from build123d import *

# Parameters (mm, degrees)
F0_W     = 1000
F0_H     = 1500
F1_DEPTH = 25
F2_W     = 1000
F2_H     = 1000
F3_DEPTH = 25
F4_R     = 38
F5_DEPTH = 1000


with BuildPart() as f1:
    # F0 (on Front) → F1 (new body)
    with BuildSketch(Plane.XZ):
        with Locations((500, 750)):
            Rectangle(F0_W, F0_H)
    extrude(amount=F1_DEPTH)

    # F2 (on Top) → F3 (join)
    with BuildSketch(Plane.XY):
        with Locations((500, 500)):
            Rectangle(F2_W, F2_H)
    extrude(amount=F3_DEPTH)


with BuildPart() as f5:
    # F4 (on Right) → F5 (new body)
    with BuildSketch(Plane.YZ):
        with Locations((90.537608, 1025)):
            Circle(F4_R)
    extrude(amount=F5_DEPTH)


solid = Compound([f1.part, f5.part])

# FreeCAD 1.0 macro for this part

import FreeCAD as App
import Part
import Sketcher
from FreeCAD import Vector
Q = App.Units.Quantity

doc = App.newDocument("Part")
params = doc.addObject("Spreadsheet::Sheet", "Params")
for row, (alias, value) in enumerate([
    ("sketch1_width", "1000 mm"),
    ("sketch1_height", "1500 mm"),
    ("pad1_length", "25 mm"),
    ("sketch2_width", "1000 mm"),
    ("pad2_length", "25 mm"),
    ("sketch3_diameter", "76 mm"),
    ("pad3_length", "1000 mm"),
], start=1):
    params.set(f"A{row}", alias)
    params.set(f"B{row}", "=" + value)
    params.setAlias(f"B{row}", alias)

body = doc.addObject("PartDesign::Body", "Body")

# Sketch on XZ plane
sketch1 = body.newObject("Sketcher::SketchObject", "Sketch")
sketch1.AttachmentSupport = (doc.getObject("XZ_Plane"), [""])
sketch1.MapMode = "FlatFace"
sketch1.addGeometry(Part.LineSegment(Vector(0, 1500, 0), Vector(0, 0, 0)), False)
sketch1.addGeometry(Part.LineSegment(Vector(0, 0, 0), Vector(1000, 0, 0)), False)
sketch1.addGeometry(Part.LineSegment(Vector(1000, 0, 0), Vector(1000, 1500, 0)), False)
sketch1.addGeometry(Part.LineSegment(Vector(1000, 1500, 0), Vector(0, 1500, 0)), False)
sketch1.addConstraint(Sketcher.Constraint("Coincident", 0, 2, 1, 1))
sketch1.addConstraint(Sketcher.Constraint("Coincident", 1, 2, 2, 1))
sketch1.addConstraint(Sketcher.Constraint("Coincident", 2, 2, 3, 1))
sketch1.addConstraint(Sketcher.Constraint("Coincident", 3, 2, 0, 1))
sketch1.addConstraint(Sketcher.Constraint("Vertical", 0))
sketch1.addConstraint(Sketcher.Constraint("Horizontal", 1))
sketch1.addConstraint(Sketcher.Constraint("Vertical", 2))
sketch1.addConstraint(Sketcher.Constraint("Horizontal", 3))
sketch1.addConstraint(Sketcher.Constraint("Coincident", 0, 2, -1, 1))
sketch1.addConstraint(Sketcher.Constraint("DistanceX", 1, 1, 1, 2, Q("1000 mm")))
sketch1.addConstraint(Sketcher.Constraint("DistanceY", 0, 2, 0, 1, Q("1500 mm")))
sketch1.setExpression("Constraints[9]", "Params.sketch1_width")
sketch1.setExpression("Constraints[10]", "Params.sketch1_height")
pad1 = body.newObject("PartDesign::Pad", "Pad")
pad1.Profile = sketch1
pad1.setExpression("Length", "Params.pad1_length")

# Sketch on XY plane
sketch2 = body.newObject("Sketcher::SketchObject", "Sketch001")
sketch2.AttachmentSupport = (doc.getObject("XY_Plane"), [""])
sketch2.MapMode = "FlatFace"
sketch2.addGeometry(Part.LineSegment(Vector(0, 1000, 0), Vector(0, 0, 0)), False)
sketch2.addGeometry(Part.LineSegment(Vector(0, 0, 0), Vector(1000, 0, 0)), False)
sketch2.addGeometry(Part.LineSegment(Vector(1000, 0, 0), Vector(1000, 1000, 0)), False)
sketch2.addGeometry(Part.LineSegment(Vector(1000, 1000, 0), Vector(0, 1000, 0)), False)
sketch2.addConstraint(Sketcher.Constraint("Coincident", 0, 2, 1, 1))
sketch2.addConstraint(Sketcher.Constraint("Coincident", 1, 2, 2, 1))
sketch2.addConstraint(Sketcher.Constraint("Coincident", 2, 2, 3, 1))
sketch2.addConstraint(Sketcher.Constraint("Coincident", 3, 2, 0, 1))
sketch2.addConstraint(Sketcher.Constraint("Vertical", 0))
sketch2.addConstraint(Sketcher.Constraint("Horizontal", 1))
sketch2.addConstraint(Sketcher.Constraint("Vertical", 2))
sketch2.addConstraint(Sketcher.Constraint("Horizontal", 3))
sketch2.addConstraint(Sketcher.Constraint("Coincident", 0, 2, -1, 1))
sketch2.addConstraint(Sketcher.Constraint("Equal", 3, 0))
sketch2.addConstraint(Sketcher.Constraint("DistanceX", 1, 1, 1, 2, Q("1000 mm")))
sketch2.setExpression("Constraints[10]", "Params.sketch2_width")
pad2 = body.newObject("PartDesign::Pad", "Pad001")
pad2.Profile = sketch2
pad2.setExpression("Length", "Params.pad2_length")
body2 = doc.addObject("PartDesign::Body", "Body001")

# Sketch on YZ plane
sketch3 = body2.newObject("Sketcher::SketchObject", "Sketch002")
sketch3.AttachmentSupport = (doc.getObject("YZ_Plane001"), [""])
sketch3.MapMode = "FlatFace"
sketch3.addGeometry(Part.Circle(Vector(91, 1025, 0), Vector(0, 0, 1), 38), False)
sketch3.addConstraint(Sketcher.Constraint("Diameter", 0, Q("76 mm")))
sketch3.addConstraint(Sketcher.Constraint("DistanceY", -1, 1, 0, 3, Q("1025 mm")))
sketch3.addConstraint(Sketcher.Constraint("DistanceX", -1, 1, 0, 3, Q("90.537608 mm")))
sketch3.setExpression("Constraints[0]", "Params.sketch3_diameter")
pad3 = body2.newObject("PartDesign::Pad", "Pad002")
pad3.Profile = sketch3
pad3.setExpression("Length", "Params.pad3_length")

doc.recompute()
